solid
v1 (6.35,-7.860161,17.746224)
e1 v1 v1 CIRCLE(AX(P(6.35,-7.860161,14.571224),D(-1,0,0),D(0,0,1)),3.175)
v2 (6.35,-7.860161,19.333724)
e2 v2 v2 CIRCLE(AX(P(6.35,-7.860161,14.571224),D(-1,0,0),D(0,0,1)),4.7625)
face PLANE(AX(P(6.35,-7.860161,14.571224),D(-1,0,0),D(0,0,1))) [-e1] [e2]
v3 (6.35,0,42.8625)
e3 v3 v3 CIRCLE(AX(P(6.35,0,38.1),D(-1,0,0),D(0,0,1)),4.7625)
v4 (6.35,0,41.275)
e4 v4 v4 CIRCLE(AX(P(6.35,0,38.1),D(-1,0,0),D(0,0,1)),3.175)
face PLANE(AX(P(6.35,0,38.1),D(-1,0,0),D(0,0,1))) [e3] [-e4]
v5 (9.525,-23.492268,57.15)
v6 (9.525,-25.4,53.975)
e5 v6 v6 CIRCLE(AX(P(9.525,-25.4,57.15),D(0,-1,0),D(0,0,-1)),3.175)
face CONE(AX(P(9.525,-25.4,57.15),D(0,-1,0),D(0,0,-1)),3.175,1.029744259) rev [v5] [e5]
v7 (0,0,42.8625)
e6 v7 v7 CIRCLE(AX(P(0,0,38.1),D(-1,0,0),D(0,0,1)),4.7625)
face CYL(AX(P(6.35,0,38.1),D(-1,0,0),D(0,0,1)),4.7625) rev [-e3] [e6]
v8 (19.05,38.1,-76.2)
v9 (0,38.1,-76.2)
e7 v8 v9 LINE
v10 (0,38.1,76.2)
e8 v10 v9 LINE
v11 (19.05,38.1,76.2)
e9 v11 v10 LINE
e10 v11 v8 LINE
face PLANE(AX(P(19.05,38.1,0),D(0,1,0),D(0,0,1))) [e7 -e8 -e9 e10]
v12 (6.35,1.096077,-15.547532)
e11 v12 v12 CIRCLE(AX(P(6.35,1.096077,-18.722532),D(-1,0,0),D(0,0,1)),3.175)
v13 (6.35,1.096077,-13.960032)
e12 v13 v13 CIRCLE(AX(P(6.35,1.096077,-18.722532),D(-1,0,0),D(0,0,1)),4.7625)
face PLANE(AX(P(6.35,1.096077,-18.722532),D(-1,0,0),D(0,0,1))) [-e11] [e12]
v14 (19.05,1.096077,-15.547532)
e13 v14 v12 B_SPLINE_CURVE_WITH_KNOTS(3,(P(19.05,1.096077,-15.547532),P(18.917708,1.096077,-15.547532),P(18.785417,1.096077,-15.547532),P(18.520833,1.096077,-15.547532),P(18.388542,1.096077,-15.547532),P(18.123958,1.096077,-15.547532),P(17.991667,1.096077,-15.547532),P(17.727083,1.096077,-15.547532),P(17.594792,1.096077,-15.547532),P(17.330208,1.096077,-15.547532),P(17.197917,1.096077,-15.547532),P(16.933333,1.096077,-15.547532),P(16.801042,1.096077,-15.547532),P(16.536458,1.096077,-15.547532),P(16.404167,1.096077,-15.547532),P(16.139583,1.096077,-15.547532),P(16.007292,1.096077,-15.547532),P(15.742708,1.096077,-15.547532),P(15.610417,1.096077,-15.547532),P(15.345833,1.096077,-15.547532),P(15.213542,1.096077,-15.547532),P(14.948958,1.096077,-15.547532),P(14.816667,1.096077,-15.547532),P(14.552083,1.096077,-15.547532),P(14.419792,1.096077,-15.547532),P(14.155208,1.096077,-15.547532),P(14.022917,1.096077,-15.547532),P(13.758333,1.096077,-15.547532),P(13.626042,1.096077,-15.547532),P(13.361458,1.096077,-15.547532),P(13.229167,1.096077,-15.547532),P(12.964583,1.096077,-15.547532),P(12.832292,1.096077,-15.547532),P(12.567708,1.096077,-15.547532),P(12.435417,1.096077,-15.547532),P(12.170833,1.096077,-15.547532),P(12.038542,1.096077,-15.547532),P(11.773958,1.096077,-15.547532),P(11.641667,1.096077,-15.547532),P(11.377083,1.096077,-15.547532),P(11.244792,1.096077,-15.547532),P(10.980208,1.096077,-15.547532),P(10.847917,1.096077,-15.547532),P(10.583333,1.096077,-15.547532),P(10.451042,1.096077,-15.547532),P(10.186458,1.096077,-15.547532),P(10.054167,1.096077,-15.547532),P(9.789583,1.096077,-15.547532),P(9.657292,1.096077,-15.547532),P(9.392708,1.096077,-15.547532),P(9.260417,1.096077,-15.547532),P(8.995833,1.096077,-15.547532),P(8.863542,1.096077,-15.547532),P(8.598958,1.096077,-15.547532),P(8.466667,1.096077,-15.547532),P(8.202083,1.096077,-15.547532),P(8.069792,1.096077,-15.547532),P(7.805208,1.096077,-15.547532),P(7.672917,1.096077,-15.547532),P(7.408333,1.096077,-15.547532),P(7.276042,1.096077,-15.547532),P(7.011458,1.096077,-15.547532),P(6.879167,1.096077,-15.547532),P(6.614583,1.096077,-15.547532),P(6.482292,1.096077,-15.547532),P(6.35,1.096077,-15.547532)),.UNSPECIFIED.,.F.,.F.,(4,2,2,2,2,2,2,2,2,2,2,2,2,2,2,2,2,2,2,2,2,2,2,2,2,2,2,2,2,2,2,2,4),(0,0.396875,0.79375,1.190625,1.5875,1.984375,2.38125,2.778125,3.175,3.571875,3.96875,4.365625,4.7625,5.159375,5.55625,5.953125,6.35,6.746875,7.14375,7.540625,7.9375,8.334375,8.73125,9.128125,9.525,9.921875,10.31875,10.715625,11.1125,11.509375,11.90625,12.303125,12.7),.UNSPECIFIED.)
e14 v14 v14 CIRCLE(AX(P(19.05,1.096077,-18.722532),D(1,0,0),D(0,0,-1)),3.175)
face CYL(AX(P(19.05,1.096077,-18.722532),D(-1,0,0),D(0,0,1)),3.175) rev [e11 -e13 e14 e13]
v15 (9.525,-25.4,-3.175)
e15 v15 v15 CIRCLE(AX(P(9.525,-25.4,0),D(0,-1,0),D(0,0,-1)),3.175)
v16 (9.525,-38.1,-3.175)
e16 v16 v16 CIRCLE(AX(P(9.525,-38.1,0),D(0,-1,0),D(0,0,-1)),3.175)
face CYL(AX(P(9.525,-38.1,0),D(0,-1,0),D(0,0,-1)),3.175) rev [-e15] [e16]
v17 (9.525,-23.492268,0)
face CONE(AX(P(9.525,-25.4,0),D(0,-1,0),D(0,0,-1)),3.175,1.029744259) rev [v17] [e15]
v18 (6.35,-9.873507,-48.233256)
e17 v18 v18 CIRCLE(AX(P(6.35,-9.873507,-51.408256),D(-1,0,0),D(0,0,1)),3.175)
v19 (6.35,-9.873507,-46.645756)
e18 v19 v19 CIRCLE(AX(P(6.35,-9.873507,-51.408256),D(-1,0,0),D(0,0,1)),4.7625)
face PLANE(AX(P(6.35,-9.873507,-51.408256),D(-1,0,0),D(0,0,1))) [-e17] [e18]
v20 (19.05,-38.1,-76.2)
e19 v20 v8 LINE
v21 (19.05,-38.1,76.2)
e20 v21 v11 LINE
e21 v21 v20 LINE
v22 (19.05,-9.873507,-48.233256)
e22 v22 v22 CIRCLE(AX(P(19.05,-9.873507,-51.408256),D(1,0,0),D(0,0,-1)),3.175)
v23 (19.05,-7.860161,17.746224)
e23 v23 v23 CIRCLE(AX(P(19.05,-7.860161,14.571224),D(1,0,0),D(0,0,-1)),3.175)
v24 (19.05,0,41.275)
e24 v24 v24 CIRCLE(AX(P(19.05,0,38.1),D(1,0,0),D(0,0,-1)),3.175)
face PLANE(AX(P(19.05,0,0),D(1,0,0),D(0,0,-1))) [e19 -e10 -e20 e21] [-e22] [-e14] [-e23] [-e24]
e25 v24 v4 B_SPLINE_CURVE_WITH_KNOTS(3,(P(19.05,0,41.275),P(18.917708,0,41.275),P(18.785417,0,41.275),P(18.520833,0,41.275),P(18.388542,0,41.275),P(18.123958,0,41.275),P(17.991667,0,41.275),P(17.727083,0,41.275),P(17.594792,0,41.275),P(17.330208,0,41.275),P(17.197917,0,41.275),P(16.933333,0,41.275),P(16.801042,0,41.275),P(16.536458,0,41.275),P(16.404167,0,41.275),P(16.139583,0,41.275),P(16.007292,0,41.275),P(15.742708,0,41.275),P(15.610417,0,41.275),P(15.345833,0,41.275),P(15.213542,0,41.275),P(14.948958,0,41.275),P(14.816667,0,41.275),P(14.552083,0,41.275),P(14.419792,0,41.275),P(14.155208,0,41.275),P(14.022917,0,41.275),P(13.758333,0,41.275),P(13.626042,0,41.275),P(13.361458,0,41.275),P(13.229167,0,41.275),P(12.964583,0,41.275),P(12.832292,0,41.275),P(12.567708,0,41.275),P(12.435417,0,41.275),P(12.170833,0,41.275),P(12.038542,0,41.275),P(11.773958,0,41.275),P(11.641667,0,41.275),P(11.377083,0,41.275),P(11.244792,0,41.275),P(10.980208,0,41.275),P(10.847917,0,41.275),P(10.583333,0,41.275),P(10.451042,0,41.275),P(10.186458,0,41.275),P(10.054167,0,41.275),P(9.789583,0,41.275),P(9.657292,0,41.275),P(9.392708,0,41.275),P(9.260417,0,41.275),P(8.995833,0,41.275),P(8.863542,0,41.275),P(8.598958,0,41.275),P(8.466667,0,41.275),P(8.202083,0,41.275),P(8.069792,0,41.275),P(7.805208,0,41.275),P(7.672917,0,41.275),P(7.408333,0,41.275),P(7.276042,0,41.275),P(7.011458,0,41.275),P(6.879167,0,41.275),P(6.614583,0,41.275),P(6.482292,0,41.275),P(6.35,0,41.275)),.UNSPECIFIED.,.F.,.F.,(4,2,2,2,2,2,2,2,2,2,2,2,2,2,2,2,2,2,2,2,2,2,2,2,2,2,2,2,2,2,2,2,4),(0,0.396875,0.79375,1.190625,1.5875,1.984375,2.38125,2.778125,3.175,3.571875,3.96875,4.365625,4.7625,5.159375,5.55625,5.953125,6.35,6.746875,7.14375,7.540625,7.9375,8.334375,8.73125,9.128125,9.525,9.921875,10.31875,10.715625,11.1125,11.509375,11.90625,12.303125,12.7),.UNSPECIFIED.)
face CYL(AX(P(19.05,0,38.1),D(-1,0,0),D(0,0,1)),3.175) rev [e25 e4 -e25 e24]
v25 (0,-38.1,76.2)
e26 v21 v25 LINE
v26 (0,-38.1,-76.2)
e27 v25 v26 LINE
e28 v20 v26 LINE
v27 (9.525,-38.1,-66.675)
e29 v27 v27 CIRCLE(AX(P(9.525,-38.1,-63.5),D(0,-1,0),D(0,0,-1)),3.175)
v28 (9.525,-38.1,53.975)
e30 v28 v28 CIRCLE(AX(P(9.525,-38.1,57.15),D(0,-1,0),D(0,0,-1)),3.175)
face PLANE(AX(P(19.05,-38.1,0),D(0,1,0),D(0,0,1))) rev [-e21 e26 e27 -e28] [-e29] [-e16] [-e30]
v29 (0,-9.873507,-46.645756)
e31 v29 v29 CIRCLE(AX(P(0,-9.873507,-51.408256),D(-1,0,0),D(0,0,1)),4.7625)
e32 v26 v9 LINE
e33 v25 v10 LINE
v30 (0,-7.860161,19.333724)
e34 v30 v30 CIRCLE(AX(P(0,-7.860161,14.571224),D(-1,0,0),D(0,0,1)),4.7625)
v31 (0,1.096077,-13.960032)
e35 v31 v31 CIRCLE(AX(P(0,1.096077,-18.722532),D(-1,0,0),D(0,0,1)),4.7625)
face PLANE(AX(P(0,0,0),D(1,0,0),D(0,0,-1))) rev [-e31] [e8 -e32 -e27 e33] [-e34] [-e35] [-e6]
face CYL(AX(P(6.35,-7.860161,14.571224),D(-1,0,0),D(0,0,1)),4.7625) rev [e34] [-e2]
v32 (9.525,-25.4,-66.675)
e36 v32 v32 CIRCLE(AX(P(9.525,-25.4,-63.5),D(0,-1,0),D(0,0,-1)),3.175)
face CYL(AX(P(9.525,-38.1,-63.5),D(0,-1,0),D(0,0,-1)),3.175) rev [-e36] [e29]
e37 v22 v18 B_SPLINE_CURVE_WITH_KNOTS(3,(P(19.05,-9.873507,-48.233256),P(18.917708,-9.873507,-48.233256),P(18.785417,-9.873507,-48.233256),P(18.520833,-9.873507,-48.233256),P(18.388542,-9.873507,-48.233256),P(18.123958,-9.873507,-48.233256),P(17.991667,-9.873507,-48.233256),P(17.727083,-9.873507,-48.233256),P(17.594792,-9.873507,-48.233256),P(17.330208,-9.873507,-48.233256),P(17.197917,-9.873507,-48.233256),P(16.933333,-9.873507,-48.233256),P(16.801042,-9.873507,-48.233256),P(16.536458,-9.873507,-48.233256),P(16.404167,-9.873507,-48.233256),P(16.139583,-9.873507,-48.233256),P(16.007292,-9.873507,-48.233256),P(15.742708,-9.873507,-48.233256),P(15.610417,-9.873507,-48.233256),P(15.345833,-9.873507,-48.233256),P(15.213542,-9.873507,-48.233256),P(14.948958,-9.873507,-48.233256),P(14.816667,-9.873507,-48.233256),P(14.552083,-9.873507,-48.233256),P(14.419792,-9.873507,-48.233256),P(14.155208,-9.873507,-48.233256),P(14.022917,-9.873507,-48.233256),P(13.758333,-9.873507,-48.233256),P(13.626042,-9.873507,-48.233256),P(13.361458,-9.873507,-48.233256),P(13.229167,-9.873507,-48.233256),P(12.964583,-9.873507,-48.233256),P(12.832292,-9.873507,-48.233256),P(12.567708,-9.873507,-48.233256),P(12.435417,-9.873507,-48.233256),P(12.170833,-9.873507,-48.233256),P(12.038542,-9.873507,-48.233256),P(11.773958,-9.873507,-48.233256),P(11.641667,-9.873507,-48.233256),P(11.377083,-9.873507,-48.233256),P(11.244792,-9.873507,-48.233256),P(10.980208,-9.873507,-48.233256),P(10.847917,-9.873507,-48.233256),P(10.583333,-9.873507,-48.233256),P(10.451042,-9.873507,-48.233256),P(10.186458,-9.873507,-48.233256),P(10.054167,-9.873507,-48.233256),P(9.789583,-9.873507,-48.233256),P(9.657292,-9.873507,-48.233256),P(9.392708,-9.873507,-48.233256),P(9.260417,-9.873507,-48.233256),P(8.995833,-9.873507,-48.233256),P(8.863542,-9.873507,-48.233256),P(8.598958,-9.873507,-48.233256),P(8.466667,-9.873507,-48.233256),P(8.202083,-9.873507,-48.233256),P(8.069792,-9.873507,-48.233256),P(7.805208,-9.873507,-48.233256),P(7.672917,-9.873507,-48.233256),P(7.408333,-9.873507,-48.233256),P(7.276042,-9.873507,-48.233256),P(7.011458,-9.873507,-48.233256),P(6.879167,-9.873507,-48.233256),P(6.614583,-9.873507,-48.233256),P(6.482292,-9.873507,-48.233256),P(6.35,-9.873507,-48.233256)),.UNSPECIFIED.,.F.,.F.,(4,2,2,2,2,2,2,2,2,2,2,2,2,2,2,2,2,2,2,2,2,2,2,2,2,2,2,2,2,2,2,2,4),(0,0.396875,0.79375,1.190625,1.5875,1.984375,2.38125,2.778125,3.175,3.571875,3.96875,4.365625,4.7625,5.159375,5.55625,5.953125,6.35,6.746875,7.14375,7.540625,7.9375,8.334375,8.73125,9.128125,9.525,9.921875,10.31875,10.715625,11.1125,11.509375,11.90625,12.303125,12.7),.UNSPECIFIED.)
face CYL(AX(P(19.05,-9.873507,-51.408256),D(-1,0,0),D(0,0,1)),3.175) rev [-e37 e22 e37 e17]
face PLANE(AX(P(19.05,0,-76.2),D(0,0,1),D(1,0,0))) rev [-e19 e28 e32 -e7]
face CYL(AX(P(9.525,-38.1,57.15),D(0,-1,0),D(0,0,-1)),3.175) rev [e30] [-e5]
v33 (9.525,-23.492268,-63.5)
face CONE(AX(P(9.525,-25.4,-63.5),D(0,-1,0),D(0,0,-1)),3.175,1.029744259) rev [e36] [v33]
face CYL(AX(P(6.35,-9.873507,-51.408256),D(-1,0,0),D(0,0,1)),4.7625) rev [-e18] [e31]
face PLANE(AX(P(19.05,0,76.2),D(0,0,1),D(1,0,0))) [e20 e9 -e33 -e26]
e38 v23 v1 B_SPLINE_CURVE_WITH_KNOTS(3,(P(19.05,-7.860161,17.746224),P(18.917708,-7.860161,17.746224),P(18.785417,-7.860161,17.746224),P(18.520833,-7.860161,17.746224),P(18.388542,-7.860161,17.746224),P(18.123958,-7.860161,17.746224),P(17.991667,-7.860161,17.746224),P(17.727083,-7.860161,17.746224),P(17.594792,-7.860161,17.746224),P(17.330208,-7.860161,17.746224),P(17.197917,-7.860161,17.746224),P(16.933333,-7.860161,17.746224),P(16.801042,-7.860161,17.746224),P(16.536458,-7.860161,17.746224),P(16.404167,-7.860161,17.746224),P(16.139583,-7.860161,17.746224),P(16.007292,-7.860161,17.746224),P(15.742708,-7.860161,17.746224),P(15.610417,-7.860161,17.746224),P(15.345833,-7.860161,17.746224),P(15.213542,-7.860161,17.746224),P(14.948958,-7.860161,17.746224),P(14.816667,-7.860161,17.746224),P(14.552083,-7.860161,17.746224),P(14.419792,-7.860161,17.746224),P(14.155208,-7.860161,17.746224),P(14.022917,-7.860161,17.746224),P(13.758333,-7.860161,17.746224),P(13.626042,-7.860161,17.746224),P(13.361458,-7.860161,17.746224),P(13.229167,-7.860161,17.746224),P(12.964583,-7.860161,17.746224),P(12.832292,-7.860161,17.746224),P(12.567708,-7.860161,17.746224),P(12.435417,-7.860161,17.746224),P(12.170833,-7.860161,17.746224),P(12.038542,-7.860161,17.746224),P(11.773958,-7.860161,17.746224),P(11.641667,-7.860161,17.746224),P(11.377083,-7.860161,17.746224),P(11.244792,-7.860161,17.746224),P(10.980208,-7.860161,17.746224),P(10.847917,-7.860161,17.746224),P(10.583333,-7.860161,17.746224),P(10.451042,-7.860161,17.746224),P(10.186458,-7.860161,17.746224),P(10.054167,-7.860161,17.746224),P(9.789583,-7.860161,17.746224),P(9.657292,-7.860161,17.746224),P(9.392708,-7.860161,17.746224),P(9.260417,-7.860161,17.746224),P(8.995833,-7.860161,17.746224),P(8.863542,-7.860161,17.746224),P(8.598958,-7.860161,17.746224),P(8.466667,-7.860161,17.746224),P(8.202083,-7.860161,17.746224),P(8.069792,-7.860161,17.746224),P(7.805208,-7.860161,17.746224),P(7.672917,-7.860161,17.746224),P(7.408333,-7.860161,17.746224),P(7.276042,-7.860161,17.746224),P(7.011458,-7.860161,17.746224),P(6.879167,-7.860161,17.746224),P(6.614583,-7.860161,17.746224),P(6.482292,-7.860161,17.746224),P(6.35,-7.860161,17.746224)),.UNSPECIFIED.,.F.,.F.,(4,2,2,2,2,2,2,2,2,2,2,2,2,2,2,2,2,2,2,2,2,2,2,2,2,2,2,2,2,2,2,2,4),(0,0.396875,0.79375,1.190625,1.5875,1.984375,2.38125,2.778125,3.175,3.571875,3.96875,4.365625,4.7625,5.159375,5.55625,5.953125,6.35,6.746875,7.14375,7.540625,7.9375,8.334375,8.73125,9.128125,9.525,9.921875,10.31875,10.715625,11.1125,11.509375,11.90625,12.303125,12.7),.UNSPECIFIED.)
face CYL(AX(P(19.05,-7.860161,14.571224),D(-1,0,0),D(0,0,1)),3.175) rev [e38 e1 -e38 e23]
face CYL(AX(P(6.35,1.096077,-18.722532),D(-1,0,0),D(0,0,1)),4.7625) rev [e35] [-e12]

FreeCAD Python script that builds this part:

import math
import FreeCAD as App
import Part
import Sketcher
from FreeCAD import Vector
Q = App.Units.Quantity

doc = App.newDocument("Part")
body = doc.addObject("PartDesign::Body", "Body")

sketch1 = body.newObject("Sketcher::SketchObject", "Sketch")
sketch1.AttachmentSupport = (doc.getObject("YZ_Plane"), [""])
sketch1.MapMode = "FlatFace"
sketch1.addGeometry([
    Part.LineSegment(Vector(38.1, 76.2, 0), Vector(-38.1, 76.2, 0)),
    Part.LineSegment(Vector(-38.1, 76.2, 0), Vector(-38.1, -76.2, 0)),
    Part.LineSegment(Vector(-38.1, -76.2, 0), Vector(38.1, -76.2, 0)),
    Part.LineSegment(Vector(38.1, -76.2, 0), Vector(38.1, 76.2, 0)),
    Part.Circle(Vector(0, 38.1, 0), Vector(0, 0, 1), 3.175),
    Part.ArcOfCircle(Part.Circle(Vector(1.096077, -18.722532, 0), Vector(0, 0, 1), 3.175), math.radians(-90), math.radians(110.195302)),
    Part.ArcOfCircle(Part.Circle(Vector(1.096077, -18.722532, 0), Vector(0, 0, 1), 3.175), math.radians(-110.195301), math.radians(-90)),
    Part.ArcOfCircle(Part.Circle(Vector(1.096077, -18.722532, 0), Vector(0, 0, 1), 3.175), math.radians(110.195302), math.radians(249.804698)),
    Part.Circle(Vector(-7.860161, 14.571224, 0), Vector(0, 0, 1), 3.175),
    Part.Circle(Vector(-9.873507, -51.408256, 0), Vector(0, 0, 1), 3.175),
], False)
sketch1.addConstraint([
    Sketcher.Constraint("Coincident", 0, 2, 1, 1),
    Sketcher.Constraint("Coincident", 1, 2, 2, 1),
    Sketcher.Constraint("Coincident", 2, 2, 3, 1),
    Sketcher.Constraint("Coincident", 3, 2, 0, 1),
    Sketcher.Constraint("Tangent", 5, 1, 6, 2),
    Sketcher.Constraint("Tangent", 6, 1, 7, 2),
    Sketcher.Constraint("Tangent", 7, 1, 5, 2),
    Sketcher.Constraint("Horizontal", 0),
    Sketcher.Constraint("Vertical", 1),
    Sketcher.Constraint("Horizontal", 2),
    Sketcher.Constraint("Vertical", 3),
    Sketcher.Constraint("Equal", 4, 5),
    Sketcher.Constraint("Equal", 7, 8),
    Sketcher.Constraint("Equal", 8, 9),
    Sketcher.Constraint("Symmetric", 0, 2, 2, 2, -1, 1),
    Sketcher.Constraint("PointOnObject", 4, 3, -2),
    Sketcher.Constraint("PointOnObject", 6, 1, -2),
    Sketcher.Constraint("PointOnObject", 7, 1, -2),
    Sketcher.Constraint("Vertical", 7, 3, 5, 1),
    Sketcher.Constraint("Diameter", 4, Q("0.25 in")),
    Sketcher.Constraint("DistanceX", 0, 2, 0, 1, Q("3 in")),
    Sketcher.Constraint("DistanceY", 1, 2, 1, 1, Q("6 in")),
    Sketcher.Constraint("DistanceY", -1, 1, 4, 3, Q("1.5 in")),
    Sketcher.Constraint("DistanceY", 5, 3, -1, 1, 18.722532),
    Sketcher.Constraint("DistanceX", 8, 3, -1, 1, 7.860161),
    Sketcher.Constraint("DistanceX", 8, 3, 6, 3, 8.956238),
    Sketcher.Constraint("DistanceY", 9, 3, 8, 3, 65.97948),
    Sketcher.Constraint("DistanceY", 9, 3, 6, 1, 29.705919),
    Sketcher.Constraint("DistanceX", 9, 3, -1, 1, 9.873507),
])
pad1 = body.newObject("PartDesign::Pad", "Pad")
pad1.Profile = sketch1
pad1.Length = Q("0.75 in")

sketch2 = body.newObject("Sketcher::SketchObject", "Sketch001")
sketch2.AttachmentSupport = (doc.getObject("YZ_Plane"), [""])
sketch2.MapMode = "FlatFace"
sketch2.addGeometry([
    Part.Circle(Vector(0, 38.1, 0), Vector(0, 0, 1), 4.7625),
    Part.Circle(Vector(-7.860161, 14.571224, 0), Vector(0, 0, 1), 4.7625),
    Part.Circle(Vector(1.096077, -18.722532, 0), Vector(0, 0, 1), 4.7625),
    Part.Circle(Vector(-9.873507, -51.408256, 0), Vector(0, 0, 1), 4.7625),
], False)
sketch2.addConstraint([
    Sketcher.Constraint("Equal", 0, 1),
    Sketcher.Constraint("Equal", 1, 2),
    Sketcher.Constraint("Equal", 2, 3),
    Sketcher.Constraint("PointOnObject", 0, 3, -2),
    Sketcher.Constraint("Diameter", 0, Q("0.375 in")),
    Sketcher.Constraint("DistanceY", -1, 1, 0, 3, Q("1.5 in")),
    Sketcher.Constraint("DistanceX", 1, 3, -1, 1, 7.860161),
    Sketcher.Constraint("DistanceY", 2, 3, -1, 1, 18.722532),
    Sketcher.Constraint("DistanceX", 1, 3, 2, 3, 8.956238),
    Sketcher.Constraint("DistanceY", 3, 3, 1, 3, 65.97948),
    Sketcher.Constraint("DistanceY", -1, 1, 1, 3, 14.571224),
    Sketcher.Constraint("DistanceX", 3, 3, -1, 1, 9.873507),
])
pocket1 = body.newObject("PartDesign::Pocket", "Pocket")
pocket1.Profile = sketch2
pocket1.Length = Q("0.25 in")
pocket1.Reversed = True

sketch3 = body.newObject("Sketcher::SketchObject", "Sketch002")
sketch3.AttachmentSupport = (doc.getObject("XZ_Plane"), [""])
sketch3.MapMode = "FlatFace"
sketch3.AttachmentOffset = App.Placement(Vector(0, 0, 1.5 * 25.4), App.Rotation())
sketch3.addGeometry([
    Part.Circle(Vector(9.525, -63.5, 0), Vector(0, 0, 1), 3.175),
    Part.Circle(Vector(9.525, 0, 0), Vector(0, 0, 1), 3.175),
    Part.Circle(Vector(9.525, 57.15, 0), Vector(0, 0, 1), 3.175),
], False)
sketch3.addConstraint([
    Sketcher.Constraint("Equal", 0, 1),
    Sketcher.Constraint("Equal", 1, 2),
    Sketcher.Constraint("PointOnObject", 1, 3, -1),
    Sketcher.Constraint("Vertical", 0, 3, 1, 3),
    Sketcher.Constraint("Vertical", 1, 3, 2, 3),
    Sketcher.Constraint("Diameter", 0, Q("0.25 in")),
    Sketcher.Constraint("DistanceY", 0, 3, -1, 1, Q("2.5 in")),
    Sketcher.Constraint("DistanceY", -1, 1, 2, 3, Q("2.25 in")),
    Sketcher.Constraint("DistanceX", -1, 1, 0, 3, Q("0.375 in")),
])
doc.recompute()
hole = body.newObject("PartDesign::Hole", "Hole")
hole.Profile = sketch3
hole.ThreadType = "None"
hole.Diameter = Q("0.25 in")
hole.DepthType = "Dimension"
hole.Depth = Q("0.5 in")
hole.DrillPoint = "Angled"
hole.DrillPointAngle = 118

doc.recompute()
